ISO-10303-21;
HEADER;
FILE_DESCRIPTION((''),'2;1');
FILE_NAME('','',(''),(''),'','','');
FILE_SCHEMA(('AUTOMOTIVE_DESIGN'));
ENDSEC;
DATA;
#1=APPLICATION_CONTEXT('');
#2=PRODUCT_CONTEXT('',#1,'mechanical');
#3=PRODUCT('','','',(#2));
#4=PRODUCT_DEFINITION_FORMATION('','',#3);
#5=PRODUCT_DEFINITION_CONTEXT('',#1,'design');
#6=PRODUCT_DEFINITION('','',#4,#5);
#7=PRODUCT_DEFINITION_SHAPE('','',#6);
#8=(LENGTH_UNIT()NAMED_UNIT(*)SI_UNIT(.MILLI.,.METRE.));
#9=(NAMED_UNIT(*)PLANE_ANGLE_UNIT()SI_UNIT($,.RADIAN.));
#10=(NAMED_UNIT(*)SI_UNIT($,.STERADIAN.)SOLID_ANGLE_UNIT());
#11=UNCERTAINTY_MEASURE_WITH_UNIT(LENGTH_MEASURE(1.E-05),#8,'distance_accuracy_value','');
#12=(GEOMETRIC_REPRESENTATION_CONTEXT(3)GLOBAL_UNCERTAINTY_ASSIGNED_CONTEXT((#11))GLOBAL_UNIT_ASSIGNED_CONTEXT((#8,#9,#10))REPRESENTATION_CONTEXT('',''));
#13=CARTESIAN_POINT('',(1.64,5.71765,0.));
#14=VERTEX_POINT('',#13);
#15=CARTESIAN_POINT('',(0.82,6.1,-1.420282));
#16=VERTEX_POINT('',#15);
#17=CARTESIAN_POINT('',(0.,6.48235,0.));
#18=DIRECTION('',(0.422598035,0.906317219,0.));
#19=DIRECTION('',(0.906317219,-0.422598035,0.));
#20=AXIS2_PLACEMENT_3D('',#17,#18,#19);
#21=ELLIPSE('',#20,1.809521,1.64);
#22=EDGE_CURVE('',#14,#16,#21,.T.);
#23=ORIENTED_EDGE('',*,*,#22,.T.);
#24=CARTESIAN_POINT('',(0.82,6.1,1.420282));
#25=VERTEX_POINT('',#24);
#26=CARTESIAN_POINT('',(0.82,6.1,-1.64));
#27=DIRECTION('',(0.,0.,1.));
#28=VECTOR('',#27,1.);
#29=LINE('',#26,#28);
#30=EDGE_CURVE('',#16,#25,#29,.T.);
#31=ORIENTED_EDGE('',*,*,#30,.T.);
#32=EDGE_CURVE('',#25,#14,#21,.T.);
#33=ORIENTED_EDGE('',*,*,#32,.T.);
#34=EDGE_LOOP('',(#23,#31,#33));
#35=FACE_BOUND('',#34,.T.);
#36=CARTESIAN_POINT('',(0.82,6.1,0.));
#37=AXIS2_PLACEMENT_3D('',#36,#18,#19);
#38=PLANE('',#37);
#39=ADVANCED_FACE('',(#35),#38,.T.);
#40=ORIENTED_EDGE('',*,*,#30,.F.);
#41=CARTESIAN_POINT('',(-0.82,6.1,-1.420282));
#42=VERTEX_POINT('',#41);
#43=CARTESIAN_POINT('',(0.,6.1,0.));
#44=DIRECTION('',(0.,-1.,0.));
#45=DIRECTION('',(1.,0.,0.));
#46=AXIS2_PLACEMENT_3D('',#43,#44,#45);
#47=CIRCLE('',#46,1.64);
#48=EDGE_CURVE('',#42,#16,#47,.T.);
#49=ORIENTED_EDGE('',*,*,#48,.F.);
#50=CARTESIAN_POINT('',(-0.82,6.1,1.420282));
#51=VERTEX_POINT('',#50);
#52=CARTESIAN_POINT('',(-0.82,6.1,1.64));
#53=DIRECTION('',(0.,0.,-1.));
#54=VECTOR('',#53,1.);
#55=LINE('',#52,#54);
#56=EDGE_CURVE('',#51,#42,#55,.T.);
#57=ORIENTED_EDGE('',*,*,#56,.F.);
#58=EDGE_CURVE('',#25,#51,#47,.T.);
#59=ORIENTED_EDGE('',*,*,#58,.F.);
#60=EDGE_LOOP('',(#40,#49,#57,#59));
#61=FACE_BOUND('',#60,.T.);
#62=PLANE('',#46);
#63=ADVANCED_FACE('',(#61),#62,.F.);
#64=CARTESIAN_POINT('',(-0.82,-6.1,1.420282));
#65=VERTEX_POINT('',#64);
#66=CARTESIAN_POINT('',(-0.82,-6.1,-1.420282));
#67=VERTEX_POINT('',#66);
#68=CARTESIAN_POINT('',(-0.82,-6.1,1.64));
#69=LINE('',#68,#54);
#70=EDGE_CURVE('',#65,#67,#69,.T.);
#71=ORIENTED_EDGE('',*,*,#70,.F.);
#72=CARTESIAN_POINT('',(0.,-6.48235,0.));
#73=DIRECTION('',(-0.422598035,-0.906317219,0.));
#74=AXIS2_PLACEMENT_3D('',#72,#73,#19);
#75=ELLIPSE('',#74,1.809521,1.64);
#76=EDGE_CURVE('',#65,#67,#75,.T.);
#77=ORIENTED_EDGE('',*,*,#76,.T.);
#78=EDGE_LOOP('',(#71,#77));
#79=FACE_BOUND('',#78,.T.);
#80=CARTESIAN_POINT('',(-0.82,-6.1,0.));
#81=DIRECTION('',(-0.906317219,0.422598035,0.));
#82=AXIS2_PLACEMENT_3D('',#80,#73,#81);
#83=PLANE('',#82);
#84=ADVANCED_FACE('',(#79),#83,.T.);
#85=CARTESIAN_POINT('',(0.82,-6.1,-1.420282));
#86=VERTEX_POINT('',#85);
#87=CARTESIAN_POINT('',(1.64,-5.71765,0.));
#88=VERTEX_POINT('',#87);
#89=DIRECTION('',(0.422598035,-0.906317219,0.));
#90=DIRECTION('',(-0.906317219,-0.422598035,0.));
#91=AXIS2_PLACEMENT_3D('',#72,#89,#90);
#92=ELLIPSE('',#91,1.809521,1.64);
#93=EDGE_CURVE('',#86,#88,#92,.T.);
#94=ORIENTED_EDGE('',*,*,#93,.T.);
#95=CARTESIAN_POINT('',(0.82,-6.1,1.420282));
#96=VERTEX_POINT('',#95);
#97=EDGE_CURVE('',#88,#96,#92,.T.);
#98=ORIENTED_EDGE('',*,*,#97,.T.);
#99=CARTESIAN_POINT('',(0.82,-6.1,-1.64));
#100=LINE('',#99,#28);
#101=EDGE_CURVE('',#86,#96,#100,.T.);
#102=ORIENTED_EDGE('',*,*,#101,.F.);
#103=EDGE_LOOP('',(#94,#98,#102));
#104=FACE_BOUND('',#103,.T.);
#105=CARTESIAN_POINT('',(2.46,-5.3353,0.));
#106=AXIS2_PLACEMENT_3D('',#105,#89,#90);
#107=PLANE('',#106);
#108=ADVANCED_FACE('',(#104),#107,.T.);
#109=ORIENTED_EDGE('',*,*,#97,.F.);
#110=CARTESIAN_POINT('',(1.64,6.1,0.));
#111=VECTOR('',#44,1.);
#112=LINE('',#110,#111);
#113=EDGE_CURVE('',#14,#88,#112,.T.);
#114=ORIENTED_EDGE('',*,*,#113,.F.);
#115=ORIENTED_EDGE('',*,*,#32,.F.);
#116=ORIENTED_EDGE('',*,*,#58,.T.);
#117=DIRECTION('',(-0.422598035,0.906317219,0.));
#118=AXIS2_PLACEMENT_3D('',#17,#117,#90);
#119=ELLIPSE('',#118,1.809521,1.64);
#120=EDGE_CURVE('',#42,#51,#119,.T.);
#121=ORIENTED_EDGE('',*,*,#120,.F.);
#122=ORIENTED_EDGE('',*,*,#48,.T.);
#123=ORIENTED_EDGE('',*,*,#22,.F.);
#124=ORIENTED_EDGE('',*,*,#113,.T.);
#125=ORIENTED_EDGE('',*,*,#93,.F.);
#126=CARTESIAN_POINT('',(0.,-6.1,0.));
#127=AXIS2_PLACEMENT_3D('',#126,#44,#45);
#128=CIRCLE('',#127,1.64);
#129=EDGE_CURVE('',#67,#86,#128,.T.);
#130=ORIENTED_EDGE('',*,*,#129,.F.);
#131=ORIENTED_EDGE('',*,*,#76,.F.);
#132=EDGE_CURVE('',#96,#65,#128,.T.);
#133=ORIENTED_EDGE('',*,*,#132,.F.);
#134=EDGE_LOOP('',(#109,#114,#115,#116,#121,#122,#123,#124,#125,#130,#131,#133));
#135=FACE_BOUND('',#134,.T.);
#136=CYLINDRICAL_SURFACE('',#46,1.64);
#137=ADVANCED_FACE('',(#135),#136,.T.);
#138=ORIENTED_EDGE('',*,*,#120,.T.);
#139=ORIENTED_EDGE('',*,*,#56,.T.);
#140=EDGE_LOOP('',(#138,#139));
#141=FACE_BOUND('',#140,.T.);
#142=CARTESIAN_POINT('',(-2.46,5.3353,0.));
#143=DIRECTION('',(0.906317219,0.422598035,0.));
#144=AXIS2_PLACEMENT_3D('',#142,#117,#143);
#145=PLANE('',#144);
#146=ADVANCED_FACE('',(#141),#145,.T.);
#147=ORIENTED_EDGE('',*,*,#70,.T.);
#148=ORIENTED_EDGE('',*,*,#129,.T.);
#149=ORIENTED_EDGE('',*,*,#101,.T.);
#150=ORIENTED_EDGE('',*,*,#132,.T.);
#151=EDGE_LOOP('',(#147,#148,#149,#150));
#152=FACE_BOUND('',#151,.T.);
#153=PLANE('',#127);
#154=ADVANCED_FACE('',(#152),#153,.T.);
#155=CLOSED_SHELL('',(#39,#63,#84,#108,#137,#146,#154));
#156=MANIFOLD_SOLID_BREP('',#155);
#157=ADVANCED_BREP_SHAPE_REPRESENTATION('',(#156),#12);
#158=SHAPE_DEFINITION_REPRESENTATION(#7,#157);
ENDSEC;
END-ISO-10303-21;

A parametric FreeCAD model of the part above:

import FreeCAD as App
import Part
import Sketcher

doc = App.newDocument("Part")
body = doc.addObject("PartDesign::Body", "Body")

sketch1 = body.newObject("Sketcher::SketchObject", "Sketch")
sketch1.AttachmentSupport = (doc.getObject("XY_Plane"), [""])
sketch1.MapMode = "FlatFace"
sketch1.addGeometry([
    Part.LineSegment(App.Vector(0, 6.1, 0), App.Vector(0, -6.1, 0)),
    Part.LineSegment(App.Vector(0, -6.1, 0), App.Vector(1.6, -6.1, 0)),
    Part.LineSegment(App.Vector(1.6, -6.1, 0), App.Vector(1.6, 6.1, 0)),
    Part.LineSegment(App.Vector(1.6, 6.1, 0), App.Vector(0, 6.1, 0)),
], False)
sketch1.addConstraint([
    Sketcher.Constraint("Coincident", 0, 2, 1, 1),
    Sketcher.Constraint("Coincident", 1, 2, 2, 1),
    Sketcher.Constraint("Coincident", 2, 2, 3, 1),
    Sketcher.Constraint("Coincident", 3, 2, 0, 1),
    Sketcher.Constraint("Vertical", 0),
    Sketcher.Constraint("Horizontal", 1),
    Sketcher.Constraint("Vertical", 2),
    Sketcher.Constraint("Horizontal", 3),
    Sketcher.Constraint("Symmetric", 0, 2, 3, 2, -1, 1),
    Sketcher.Constraint("DistanceY", 0, 2, 0, 1, 12.2),
    Sketcher.Constraint("DistanceX", 1, 1, 1, 2, 1.64),
])
revolution = body.newObject("PartDesign::Revolution", "Revolution")
revolution.Profile = sketch1
revolution.ReferenceAxis = (sketch1, ["V_Axis"])
revolution.Angle = 360

sketch2 = body.newObject("Sketcher::SketchObject", "Sketch001")
sketch2.AttachmentSupport = (doc.getObject("XY_Plane"), [""])
sketch2.MapMode = "FlatFace"
sketch2.addGeometry([
    Part.LineSegment(App.Vector(0.8, 6.9, 0), App.Vector(0.8, 6.1, 0)),
    Part.LineSegment(App.Vector(0.8, 6.1, 0), App.Vector(2.5, 5.3, 0)),
    Part.LineSegment(App.Vector(2.5, 5.3, 0), App.Vector(2.5, 6.9, 0)),
    Part.LineSegment(App.Vector(2.5, 6.9, 0), App.Vector(0.8, 6.9, 0)),
], False)
sketch2.addConstraint([
    Sketcher.Constraint("Coincident", 0, 2, 1, 1),
    Sketcher.Constraint("Coincident", 1, 2, 2, 1),
    Sketcher.Constraint("Coincident", 2, 2, 3, 1),
    Sketcher.Constraint("Coincident", 3, 2, 0, 1),
    Sketcher.Constraint("Vertical", 0),
    Sketcher.Constraint("Vertical", 2),
    Sketcher.Constraint("Horizontal", 3),
    Sketcher.Constraint("DistanceX", 3, 2, 3, 1, 1.64),
    Sketcher.Constraint("DistanceY", 0, 2, 0, 1, 0.82),
    Sketcher.Constraint("DistanceY", -1, 1, 0, 2, 6.1),
    Sketcher.Constraint("DistanceX", -1, 1, 0, 2, 0.82),
    Sketcher.Constraint("DistanceY", 2, 1, 2, 2, 1.5847),
])
pocket1 = body.newObject("PartDesign::Pocket", "Pocket")
pocket1.Profile = sketch2
pocket1.Length = 3.28
pocket1.Midplane = True

sketch3 = body.newObject("Sketcher::SketchObject", "Sketch002")
sketch3.AttachmentSupport = (doc.getObject("XY_Plane"), [""])
sketch3.MapMode = "FlatFace"
sketch3.addGeometry([
    Part.LineSegment(App.Vector(-0.8, 6.9, 0), App.Vector(-2.5, 6.9, 0)),
    Part.LineSegment(App.Vector(-2.5, 6.9, 0), App.Vector(-2.5, 5.3, 0)),
    Part.LineSegment(App.Vector(-2.5, 5.3, 0), App.Vector(-0.8, 6.1, 0)),
    Part.LineSegment(App.Vector(-0.8, 6.1, 0), App.Vector(-0.8, 6.9, 0)),
], False)
sketch3.addConstraint([
    Sketcher.Constraint("Coincident", 0, 2, 1, 1),
    Sketcher.Constraint("Coincident", 1, 2, 2, 1),
    Sketcher.Constraint("Coincident", 2, 2, 3, 1),
    Sketcher.Constraint("Coincident", 3, 2, 0, 1),
    Sketcher.Constraint("Horizontal", 0),
    Sketcher.Constraint("Vertical", 1),
    Sketcher.Constraint("Vertical", 3),
    Sketcher.Constraint("DistanceX", 0, 2, 0, 1, 1.64),
    Sketcher.Constraint("DistanceY", 3, 1, 3, 2, 0.82),
    Sketcher.Constraint("DistanceY", -1, 1, 2, 2, 6.1),
    Sketcher.Constraint("DistanceX", 0, 2, -1, 1, 2.46),
    Sketcher.Constraint("DistanceY", 1, 2, 1, 1, 1.5847),
])
pocket2 = body.newObject("PartDesign::Pocket", "Pocket001")
pocket2.Profile = sketch3
pocket2.Length = 3.28
pocket2.Midplane = True

sketch4 = body.newObject("Sketcher::SketchObject", "Sketch003")
sketch4.AttachmentSupport = (doc.getObject("XY_Plane"), [""])
sketch4.MapMode = "FlatFace"
sketch4.addGeometry([
    Part.LineSegment(App.Vector(2.5, -5.3, 0), App.Vector(0.8, -6.1, 0)),
    Part.LineSegment(App.Vector(0.8, -6.1, 0), App.Vector(0.8, -6.9, 0)),
    Part.LineSegment(App.Vector(0.8, -6.9, 0), App.Vector(2.5, -6.9, 0)),
    Part.LineSegment(App.Vector(2.5, -6.9, 0), App.Vector(2.5, -5.3, 0)),
], False)
sketch4.addConstraint([
    Sketcher.Constraint("Coincident", 0, 2, 1, 1),
    Sketcher.Constraint("Coincident", 1, 2, 2, 1),
    Sketcher.Constraint("Coincident", 2, 2, 3, 1),
    Sketcher.Constraint("Coincident", 3, 2, 0, 1),
    Sketcher.Constraint("Vertical", 1),
    Sketcher.Constraint("Horizontal", 2),
    Sketcher.Constraint("Vertical", 3),
    Sketcher.Constraint("DistanceX", 2, 1, 2, 2, 1.64),
    Sketcher.Constraint("DistanceY", 1, 2, 1, 1, 0.82),
    Sketcher.Constraint("DistanceY", 0, 2, -1, 1, 6.1),
    Sketcher.Constraint("DistanceX", -1, 1, 0, 2, 0.82),
    Sketcher.Constraint("DistanceY", 3, 1, 3, 2, 1.5847),
])
pocket3 = body.newObject("PartDesign::Pocket", "Pocket002")
pocket3.Profile = sketch4
pocket3.Length = 3.28
pocket3.Midplane = True

sketch5 = body.newObject("Sketcher::SketchObject", "Sketch004")
sketch5.AttachmentSupport = (doc.getObject("XY_Plane"), [""])
sketch5.MapMode = "FlatFace"
sketch5.addGeometry([
    Part.LineSegment(App.Vector(-2.5, -5.3, 0), App.Vector(-2.5, -6.9, 0)),
    Part.LineSegment(App.Vector(-2.5, -6.9, 0), App.Vector(-0.8, -6.9, 0)),
    Part.LineSegment(App.Vector(-0.8, -6.9, 0), App.Vector(-0.8, -6.1, 0)),
    Part.LineSegment(App.Vector(-0.8, -6.1, 0), App.Vector(-2.5, -5.3, 0)),
], False)
sketch5.addConstraint([
    Sketcher.Constraint("Coincident", 0, 2, 1, 1),
    Sketcher.Constraint("Coincident", 1, 2, 2, 1),
    Sketcher.Constraint("Coincident", 2, 2, 3, 1),
    Sketcher.Constraint("Coincident", 3, 2, 0, 1),
    Sketcher.Constraint("Vertical", 0),
    Sketcher.Constraint("Horizontal", 1),
    Sketcher.Constraint("Vertical", 2),
    Sketcher.Constraint("DistanceX", 1, 1, 1, 2, 1.64),
    Sketcher.Constraint("DistanceY", 2, 1, 2, 2, 0.82),
    Sketcher.Constraint("DistanceY", 2, 2, -1, 1, 6.1),
    Sketcher.Constraint("DistanceX", 0, 2, -1, 1, 2.46),
    Sketcher.Constraint("DistanceY", 0, 2, 0, 1, 1.5847),
])
pocket4 = body.newObject("PartDesign::Pocket", "Pocket003")
pocket4.Profile = sketch5
pocket4.Length = 3.28
pocket4.Midplane = True

doc.recompute()
